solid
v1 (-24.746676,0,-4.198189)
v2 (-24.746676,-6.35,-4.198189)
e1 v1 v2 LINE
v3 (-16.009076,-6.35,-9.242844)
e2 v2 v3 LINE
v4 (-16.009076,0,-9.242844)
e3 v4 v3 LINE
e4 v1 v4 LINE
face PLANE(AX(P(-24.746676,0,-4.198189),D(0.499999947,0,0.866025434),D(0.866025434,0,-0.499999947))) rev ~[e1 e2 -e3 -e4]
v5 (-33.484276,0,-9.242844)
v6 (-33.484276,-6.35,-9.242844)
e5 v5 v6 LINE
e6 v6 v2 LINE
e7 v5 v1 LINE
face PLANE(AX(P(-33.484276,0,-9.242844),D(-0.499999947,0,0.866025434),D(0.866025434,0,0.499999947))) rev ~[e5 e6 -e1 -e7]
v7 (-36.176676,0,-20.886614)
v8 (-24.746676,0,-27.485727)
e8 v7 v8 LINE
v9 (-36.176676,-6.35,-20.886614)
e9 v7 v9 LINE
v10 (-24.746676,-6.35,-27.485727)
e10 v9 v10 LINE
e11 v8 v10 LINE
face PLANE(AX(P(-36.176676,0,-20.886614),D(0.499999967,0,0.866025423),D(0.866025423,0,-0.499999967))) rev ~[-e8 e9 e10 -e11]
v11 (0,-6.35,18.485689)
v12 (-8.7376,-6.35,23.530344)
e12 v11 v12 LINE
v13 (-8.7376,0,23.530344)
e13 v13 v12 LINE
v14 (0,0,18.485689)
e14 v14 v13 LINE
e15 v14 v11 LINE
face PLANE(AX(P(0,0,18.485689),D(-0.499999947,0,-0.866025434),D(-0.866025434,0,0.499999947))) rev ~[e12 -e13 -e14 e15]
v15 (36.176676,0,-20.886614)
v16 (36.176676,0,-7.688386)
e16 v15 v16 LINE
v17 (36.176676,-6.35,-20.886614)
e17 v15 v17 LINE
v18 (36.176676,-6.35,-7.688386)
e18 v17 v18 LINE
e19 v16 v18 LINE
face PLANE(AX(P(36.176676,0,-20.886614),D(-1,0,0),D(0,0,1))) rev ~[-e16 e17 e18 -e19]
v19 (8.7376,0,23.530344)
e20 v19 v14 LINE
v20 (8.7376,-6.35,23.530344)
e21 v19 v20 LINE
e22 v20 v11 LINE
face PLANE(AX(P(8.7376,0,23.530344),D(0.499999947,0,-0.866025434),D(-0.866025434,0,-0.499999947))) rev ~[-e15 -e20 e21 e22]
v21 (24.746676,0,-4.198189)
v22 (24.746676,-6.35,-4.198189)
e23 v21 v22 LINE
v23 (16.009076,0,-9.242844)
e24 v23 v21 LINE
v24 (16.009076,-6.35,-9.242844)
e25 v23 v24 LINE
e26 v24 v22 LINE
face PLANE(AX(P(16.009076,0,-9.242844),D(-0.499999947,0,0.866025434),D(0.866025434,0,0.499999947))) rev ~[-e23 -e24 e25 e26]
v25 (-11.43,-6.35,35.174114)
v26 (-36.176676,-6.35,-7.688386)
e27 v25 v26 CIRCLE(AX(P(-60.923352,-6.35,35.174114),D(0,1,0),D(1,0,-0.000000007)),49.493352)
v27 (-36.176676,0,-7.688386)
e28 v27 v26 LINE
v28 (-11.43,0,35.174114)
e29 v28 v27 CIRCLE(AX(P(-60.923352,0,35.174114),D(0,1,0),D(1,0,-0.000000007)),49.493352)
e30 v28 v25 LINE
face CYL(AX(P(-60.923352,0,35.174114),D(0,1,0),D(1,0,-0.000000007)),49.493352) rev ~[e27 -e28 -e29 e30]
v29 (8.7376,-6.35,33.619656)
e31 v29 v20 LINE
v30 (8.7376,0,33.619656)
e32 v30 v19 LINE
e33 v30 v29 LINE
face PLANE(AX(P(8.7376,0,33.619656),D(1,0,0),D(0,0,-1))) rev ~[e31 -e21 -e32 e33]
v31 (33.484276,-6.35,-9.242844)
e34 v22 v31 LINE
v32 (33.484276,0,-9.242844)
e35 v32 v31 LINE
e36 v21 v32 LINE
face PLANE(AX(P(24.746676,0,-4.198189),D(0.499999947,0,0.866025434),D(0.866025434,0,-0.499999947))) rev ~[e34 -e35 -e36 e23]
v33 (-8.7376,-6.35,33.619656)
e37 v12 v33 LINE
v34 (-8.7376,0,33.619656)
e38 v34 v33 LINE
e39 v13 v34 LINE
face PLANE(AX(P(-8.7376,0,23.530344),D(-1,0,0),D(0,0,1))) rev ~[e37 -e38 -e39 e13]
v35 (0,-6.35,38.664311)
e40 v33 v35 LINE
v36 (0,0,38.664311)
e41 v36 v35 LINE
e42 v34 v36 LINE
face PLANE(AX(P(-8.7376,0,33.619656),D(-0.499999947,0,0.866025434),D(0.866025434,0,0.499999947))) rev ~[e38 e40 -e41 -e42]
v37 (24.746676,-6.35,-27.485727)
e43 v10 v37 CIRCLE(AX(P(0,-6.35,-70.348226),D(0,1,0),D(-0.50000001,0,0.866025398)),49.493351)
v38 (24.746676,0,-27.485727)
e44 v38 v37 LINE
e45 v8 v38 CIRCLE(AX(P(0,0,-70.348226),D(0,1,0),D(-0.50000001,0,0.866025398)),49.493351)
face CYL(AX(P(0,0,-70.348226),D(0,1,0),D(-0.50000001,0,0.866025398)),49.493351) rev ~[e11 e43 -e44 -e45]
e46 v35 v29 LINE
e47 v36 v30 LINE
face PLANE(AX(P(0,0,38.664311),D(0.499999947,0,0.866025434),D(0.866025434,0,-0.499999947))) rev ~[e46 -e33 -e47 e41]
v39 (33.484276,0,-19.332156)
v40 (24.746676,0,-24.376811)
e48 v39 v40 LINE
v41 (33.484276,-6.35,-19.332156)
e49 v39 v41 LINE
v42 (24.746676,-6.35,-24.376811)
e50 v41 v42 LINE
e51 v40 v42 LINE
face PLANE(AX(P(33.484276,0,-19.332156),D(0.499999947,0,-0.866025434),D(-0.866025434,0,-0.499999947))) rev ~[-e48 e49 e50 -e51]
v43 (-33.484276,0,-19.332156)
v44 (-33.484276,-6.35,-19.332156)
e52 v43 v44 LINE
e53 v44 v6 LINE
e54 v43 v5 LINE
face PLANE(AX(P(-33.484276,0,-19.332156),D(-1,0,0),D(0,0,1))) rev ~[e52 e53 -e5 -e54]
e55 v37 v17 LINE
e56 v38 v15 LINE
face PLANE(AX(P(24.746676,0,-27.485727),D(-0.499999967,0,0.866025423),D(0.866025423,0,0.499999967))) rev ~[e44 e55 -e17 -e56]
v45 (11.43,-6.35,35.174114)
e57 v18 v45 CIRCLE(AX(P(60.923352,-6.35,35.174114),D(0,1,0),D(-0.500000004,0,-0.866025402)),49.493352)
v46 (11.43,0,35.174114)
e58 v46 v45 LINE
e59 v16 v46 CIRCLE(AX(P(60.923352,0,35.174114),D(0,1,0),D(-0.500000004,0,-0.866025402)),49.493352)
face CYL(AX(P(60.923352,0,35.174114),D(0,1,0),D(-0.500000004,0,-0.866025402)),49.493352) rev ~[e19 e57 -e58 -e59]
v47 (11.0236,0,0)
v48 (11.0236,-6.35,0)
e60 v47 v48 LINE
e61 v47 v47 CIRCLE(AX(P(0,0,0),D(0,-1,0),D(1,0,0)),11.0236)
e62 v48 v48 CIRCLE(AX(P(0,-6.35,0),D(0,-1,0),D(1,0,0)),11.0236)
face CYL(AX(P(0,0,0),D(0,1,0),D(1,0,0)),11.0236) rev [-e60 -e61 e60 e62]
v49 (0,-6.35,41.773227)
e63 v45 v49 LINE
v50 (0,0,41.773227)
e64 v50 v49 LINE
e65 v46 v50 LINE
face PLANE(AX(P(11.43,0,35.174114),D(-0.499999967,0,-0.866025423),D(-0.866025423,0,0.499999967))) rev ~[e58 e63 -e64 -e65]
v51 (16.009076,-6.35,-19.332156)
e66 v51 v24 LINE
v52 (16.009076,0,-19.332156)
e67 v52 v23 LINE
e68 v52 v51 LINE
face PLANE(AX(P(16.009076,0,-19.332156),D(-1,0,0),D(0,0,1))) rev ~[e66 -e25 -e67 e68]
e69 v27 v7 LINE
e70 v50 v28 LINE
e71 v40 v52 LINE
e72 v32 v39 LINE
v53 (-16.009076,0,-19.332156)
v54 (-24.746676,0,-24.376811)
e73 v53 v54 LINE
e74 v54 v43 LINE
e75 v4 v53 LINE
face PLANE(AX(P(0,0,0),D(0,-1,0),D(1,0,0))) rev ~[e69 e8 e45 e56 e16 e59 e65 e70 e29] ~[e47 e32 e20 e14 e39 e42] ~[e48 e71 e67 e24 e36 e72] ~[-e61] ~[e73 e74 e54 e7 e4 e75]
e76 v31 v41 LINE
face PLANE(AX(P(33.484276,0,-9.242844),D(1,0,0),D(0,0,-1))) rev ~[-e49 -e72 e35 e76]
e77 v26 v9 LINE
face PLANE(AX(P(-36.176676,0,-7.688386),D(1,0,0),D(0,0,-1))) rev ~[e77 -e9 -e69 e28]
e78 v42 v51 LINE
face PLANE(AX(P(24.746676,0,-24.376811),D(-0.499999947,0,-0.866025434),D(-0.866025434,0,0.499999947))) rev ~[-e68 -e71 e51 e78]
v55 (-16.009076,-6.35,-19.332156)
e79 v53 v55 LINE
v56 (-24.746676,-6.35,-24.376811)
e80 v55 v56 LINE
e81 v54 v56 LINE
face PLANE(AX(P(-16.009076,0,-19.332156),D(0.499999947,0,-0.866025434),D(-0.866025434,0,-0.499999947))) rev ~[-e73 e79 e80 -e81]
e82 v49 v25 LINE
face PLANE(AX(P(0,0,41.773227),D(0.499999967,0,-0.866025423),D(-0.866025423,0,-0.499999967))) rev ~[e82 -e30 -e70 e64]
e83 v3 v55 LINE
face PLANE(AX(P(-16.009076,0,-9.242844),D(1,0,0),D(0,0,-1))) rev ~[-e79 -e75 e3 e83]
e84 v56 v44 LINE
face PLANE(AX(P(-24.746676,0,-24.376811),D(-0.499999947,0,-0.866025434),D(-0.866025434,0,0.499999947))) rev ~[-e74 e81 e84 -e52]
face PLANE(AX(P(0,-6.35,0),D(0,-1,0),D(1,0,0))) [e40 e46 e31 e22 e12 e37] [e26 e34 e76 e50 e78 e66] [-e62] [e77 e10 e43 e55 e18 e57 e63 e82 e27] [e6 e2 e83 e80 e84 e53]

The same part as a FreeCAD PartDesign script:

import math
import FreeCAD as App
import Part
import Sketcher
Q = App.Units.Quantity


def add_polygon(sketch, points):
    """Adds a closed chain of lines whose ends are joined by coincident constraints."""
    first, n = sketch.GeometryCount, len(points)
    for a, b in zip(points, points[1:] + points[:1]):
        sketch.addGeometry(Part.LineSegment(App.Vector(*a, 0), App.Vector(*b, 0)), False)
    for i in range(n):
        sketch.addConstraint(Sketcher.Constraint("Coincident", first + i, 2, first + (i + 1) % n, 1))

doc = App.newDocument("Part")
body = doc.addObject("PartDesign::Body", "Body")

sketch1 = body.newObject("Sketcher::SketchObject", "Sketch")
sketch1.AttachmentSupport = (doc.getObject("XZ_Plane"), [""])
sketch1.MapMode = "FlatFace"
sketch1.addGeometry(Part.ArcOfCircle(Part.Circle(App.Vector(-61, 35, 0), App.Vector(0, 0, 1), 49), math.radians(-60), math.radians(0)), False)
sketch1.addGeometry(Part.LineSegment(App.Vector(-36, -8, 0), App.Vector(-36, -21, 0)), False)
sketch1.addGeometry(Part.LineSegment(App.Vector(-36, -21, 0), App.Vector(-25, -27, 0)), False)
sketch1.addGeometry(Part.ArcOfCircle(Part.Circle(App.Vector(0, -70, 0), App.Vector(0, 0, 1), 49), math.radians(60), math.radians(120)), False)
sketch1.addGeometry(Part.LineSegment(App.Vector(25, -27, 0), App.Vector(36, -21, 0)), False)
sketch1.addGeometry(Part.LineSegment(App.Vector(36, -21, 0), App.Vector(36, -8, 0)), False)
sketch1.addGeometry(Part.ArcOfCircle(Part.Circle(App.Vector(61, 35, 0), App.Vector(0, 0, 1), 49), math.radians(-180), math.radians(-120)), False)
sketch1.addGeometry(Part.LineSegment(App.Vector(11, 35, 0), App.Vector(0, 42, 0)), False)
sketch1.addGeometry(Part.LineSegment(App.Vector(0, 42, 0), App.Vector(-11, 35, 0)), False)
add_polygon(sketch1, [(-33, -9), (-25, -4), (-16, -9), (-16, -19), (-25, -24), (-33, -19)])
add_polygon(sketch1, [(25, -24), (16, -19), (16, -9), (25, -4), (33, -9), (33, -19)])
sketch1.addGeometry(Part.Circle(App.Vector(0, 0, 0), App.Vector(0, 0, 1), 11), False)
add_polygon(sketch1, [(9, 24), (0, 18), (-9, 24), (-9, 34), (0, 39), (9, 34)])
sketch1.addConstraint([
    Sketcher.Constraint("Coincident", 0, 1, 1, 1),
    Sketcher.Constraint("Coincident", 1, 2, 2, 1),
    Sketcher.Constraint("Coincident", 2, 2, 3, 2),
    Sketcher.Constraint("Coincident", 3, 1, 4, 1),
    Sketcher.Constraint("Coincident", 4, 2, 5, 1),
    Sketcher.Constraint("Coincident", 5, 2, 6, 2),
    Sketcher.Constraint("Coincident", 6, 1, 7, 1),
    Sketcher.Constraint("Coincident", 7, 2, 8, 1),
    Sketcher.Constraint("Coincident", 8, 2, 0, 2),
    Sketcher.Constraint("Vertical", 1),
    Sketcher.Constraint("Vertical", 5),
    Sketcher.Constraint("Vertical", 11),
    Sketcher.Constraint("Vertical", 14),
    Sketcher.Constraint("Vertical", 16),
    Sketcher.Constraint("Vertical", 19),
    Sketcher.Constraint("Vertical", 24),
    Sketcher.Constraint("Vertical", 27),
    Sketcher.Constraint("Coincident", 21, 3, -1, 1),
    Sketcher.Constraint("Equal", 0, 3),
    Sketcher.Constraint("Equal", 3, 6),
    Sketcher.Constraint("Symmetric", 0, 3, 6, 3, -2),
    Sketcher.Constraint("Symmetric", 2, 2, 3, 1, -2),
    Sketcher.Constraint("Symmetric", 1, 2, 4, 2, -2),
    Sketcher.Constraint("Symmetric", 11, 2, 15, 2, -2),
    Sketcher.Constraint("Symmetric", 9, 2, 17, 2, -2),
    Sketcher.Constraint("Symmetric", 14, 2, 18, 2, -2),
    Sketcher.Constraint("Symmetric", 12, 2, 20, 2, -2),
    Sketcher.Constraint("Symmetric", 24, 2, 26, 2, -2),
    Sketcher.Constraint("PointOnObject", 7, 2, -2),
    Sketcher.Constraint("PointOnObject", 22, 2, -2),
    Sketcher.Constraint("PointOnObject", 25, 2, -2),
    Sketcher.Constraint("Parallel", 2, 7),
    Sketcher.Constraint("Parallel", 4, 8),
    Sketcher.Constraint("Parallel", 8, 9),
    Sketcher.Constraint("Parallel", 7, 10),
    Sketcher.Constraint("Parallel", 9, 12),
    Sketcher.Constraint("Parallel", 10, 13),
    Sketcher.Constraint("Parallel", 12, 17),
    Sketcher.Constraint("Parallel", 17, 20),
    Sketcher.Constraint("Parallel", 20, 22),
    Sketcher.Constraint("Parallel", 18, 23),
    Sketcher.Constraint("Parallel", 22, 25),
    Sketcher.Constraint("Horizontal", 0, 3, 6, 1),
    Sketcher.Constraint("Horizontal", 11, 2, 13, 2),
    Sketcher.Constraint("Horizontal", 10, 2, 14, 2),
    Sketcher.Constraint("Vertical", 2, 2, 9, 2),
    Sketcher.Constraint("Equal", 19, 24),
    Sketcher.Constraint("Equal", 4, 7),
    Sketcher.Constraint("Equal", 20, 22),
    Sketcher.Constraint("Diameter", 21, Q("0.868 in")),
    Sketcher.Constraint("Angle", 2, Q("-29.999998 deg")),
    Sketcher.Constraint("DistanceX", 8, 2, 6, 1, Q("0.9 in")),
    Sketcher.Constraint("DistanceX", 23, 2, -1, 1, Q("0.344 in")),
    Sketcher.Constraint("Radius", 3, 49.493351),
    Sketcher.Constraint("DistanceY", 0, 1, 0, 3, Q("1.6875 in")),
    Sketcher.Constraint("DistanceY", 1, 2, 1, 1, 13.198228),
    Sketcher.Constraint("DistanceY", 11, 2, 11, 1, 10.089312),
    Sketcher.Constraint("DistanceY", 9, 2, -1, 1, 4.198189),
    Sketcher.Constraint("DistanceY", -1, 1, 22, 2, 18.485689),
    Sketcher.Constraint("DistanceY", 2, 2, 9, 2, 23.287538),
])
pad1 = body.newObject("PartDesign::Pad", "Pad")
pad1.Profile = sketch1
pad1.Length = Q("0.25 in")

doc.recompute()
